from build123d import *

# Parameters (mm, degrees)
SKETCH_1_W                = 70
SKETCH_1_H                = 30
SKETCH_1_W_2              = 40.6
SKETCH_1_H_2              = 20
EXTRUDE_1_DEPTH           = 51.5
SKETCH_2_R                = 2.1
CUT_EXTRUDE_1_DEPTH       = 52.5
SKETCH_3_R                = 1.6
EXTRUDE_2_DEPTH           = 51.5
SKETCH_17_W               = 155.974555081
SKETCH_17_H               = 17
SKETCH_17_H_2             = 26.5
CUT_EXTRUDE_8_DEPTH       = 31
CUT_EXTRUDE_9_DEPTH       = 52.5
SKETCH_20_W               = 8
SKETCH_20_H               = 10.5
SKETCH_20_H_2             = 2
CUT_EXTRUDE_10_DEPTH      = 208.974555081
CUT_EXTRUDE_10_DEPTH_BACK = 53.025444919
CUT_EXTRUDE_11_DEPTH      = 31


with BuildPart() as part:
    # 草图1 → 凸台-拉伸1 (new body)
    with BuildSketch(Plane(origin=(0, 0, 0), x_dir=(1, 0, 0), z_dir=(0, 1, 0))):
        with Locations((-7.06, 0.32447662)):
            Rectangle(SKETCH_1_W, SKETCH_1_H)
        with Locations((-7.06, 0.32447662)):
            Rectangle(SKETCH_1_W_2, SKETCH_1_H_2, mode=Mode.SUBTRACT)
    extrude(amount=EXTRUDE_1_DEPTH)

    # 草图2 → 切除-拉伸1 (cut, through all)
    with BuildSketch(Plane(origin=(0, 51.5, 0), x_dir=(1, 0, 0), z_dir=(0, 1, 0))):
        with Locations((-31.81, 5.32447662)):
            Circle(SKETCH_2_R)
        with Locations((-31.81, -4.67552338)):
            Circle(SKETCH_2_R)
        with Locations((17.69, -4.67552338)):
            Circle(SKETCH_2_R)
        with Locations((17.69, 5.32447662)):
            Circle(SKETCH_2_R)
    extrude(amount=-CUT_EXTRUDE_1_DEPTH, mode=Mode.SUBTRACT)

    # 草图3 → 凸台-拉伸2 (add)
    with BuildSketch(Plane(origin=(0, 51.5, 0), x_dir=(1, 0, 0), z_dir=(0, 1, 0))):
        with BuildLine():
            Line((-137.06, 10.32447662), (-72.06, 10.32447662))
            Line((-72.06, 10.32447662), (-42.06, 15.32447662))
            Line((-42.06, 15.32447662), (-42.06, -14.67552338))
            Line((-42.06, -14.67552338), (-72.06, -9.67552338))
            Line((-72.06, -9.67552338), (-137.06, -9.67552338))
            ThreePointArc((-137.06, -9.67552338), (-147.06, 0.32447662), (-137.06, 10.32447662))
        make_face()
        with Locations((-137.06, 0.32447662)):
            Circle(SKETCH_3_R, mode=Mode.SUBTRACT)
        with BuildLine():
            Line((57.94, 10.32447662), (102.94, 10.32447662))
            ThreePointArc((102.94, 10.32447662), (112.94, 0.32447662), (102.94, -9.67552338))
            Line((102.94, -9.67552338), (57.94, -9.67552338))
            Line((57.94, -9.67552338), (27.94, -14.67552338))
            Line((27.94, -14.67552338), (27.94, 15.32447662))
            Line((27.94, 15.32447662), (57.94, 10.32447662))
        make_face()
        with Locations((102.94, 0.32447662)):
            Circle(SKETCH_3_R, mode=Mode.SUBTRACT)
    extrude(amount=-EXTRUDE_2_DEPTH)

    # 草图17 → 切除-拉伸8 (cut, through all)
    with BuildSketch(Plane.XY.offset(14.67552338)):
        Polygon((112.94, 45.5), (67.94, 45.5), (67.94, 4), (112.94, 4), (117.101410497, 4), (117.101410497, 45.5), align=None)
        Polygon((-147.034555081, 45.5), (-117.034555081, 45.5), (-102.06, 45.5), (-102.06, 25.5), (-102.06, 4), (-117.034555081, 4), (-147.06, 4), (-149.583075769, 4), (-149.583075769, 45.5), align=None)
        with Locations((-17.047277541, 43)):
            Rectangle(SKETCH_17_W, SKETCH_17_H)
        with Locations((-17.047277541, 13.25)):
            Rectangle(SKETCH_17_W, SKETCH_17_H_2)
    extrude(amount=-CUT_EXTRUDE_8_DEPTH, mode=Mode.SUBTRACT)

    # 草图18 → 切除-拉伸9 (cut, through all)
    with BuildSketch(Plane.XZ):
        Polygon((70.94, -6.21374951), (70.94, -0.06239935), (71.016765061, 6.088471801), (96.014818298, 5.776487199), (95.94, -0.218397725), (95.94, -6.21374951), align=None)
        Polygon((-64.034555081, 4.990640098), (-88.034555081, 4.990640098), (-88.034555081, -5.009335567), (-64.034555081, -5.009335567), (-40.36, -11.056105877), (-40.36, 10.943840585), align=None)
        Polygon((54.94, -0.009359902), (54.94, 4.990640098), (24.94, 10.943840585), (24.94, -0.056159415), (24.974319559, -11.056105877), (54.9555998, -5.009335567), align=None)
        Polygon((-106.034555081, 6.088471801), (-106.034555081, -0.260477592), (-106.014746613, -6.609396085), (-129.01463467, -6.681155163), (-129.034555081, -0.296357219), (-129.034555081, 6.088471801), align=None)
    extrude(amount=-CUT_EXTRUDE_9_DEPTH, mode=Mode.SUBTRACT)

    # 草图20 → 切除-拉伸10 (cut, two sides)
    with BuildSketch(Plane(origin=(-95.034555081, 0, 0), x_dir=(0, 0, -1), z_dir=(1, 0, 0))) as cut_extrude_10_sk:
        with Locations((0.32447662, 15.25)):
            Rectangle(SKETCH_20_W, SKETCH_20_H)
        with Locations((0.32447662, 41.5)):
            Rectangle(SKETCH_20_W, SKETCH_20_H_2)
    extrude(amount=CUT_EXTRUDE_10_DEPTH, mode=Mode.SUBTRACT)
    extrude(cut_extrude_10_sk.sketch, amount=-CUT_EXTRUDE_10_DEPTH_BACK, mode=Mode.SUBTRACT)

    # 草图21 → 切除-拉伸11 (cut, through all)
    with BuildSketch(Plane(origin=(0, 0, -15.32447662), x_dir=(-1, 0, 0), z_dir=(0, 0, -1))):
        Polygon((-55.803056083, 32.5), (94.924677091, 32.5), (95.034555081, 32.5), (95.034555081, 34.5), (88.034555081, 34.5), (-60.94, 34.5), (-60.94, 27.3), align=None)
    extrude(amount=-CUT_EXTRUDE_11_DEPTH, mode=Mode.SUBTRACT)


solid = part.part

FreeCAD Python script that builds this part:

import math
import FreeCAD as App
import Part
import Sketcher
from FreeCAD import Vector


def add_polygon(sketch, points):
    """Adds a closed chain of lines whose ends are joined by coincident constraints."""
    first, n = sketch.GeometryCount, len(points)
    for a, b in zip(points, points[1:] + points[:1]):
        sketch.addGeometry(Part.LineSegment(App.Vector(*a, 0), App.Vector(*b, 0)), False)
    for i in range(n):
        sketch.addConstraint(Sketcher.Constraint("Coincident", first + i, 2, first + (i + 1) % n, 1))

doc = App.newDocument("Part")
body = doc.addObject("PartDesign::Body", "Body")

# Sketch on XZ plane
sketch1 = body.newObject("Sketcher::SketchObject", "Sketch")
sketch1.AttachmentSupport = (doc.getObject("XZ_Plane"), [""])
sketch1.MapMode = "FlatFace"
add_polygon(sketch1, [(-42.06, -15.324477), (-42.06, 14.675523), (27.94, 14.675523), (27.94, -15.324477)])  # lines 0-3
add_polygon(sketch1, [(13.24, 9.675523), (-27.36, 9.675523), (-27.36, -10.324477), (13.24, -10.324477)])  # lines 4-7
sketch1.addConstraint(Sketcher.Constraint("Vertical", 0))
sketch1.addConstraint(Sketcher.Constraint("Horizontal", 1))
sketch1.addConstraint(Sketcher.Constraint("Vertical", 2))
sketch1.addConstraint(Sketcher.Constraint("Horizontal", 3))
sketch1.addConstraint(Sketcher.Constraint("Horizontal", 4))
sketch1.addConstraint(Sketcher.Constraint("Vertical", 5))
sketch1.addConstraint(Sketcher.Constraint("Horizontal", 6))
sketch1.addConstraint(Sketcher.Constraint("Vertical", 7))
sketch1.addConstraint(Sketcher.Constraint("DistanceX", 1, 1, 1, 2, 70.0))
sketch1.addConstraint(Sketcher.Constraint("DistanceY", 0, 1, 0, 2, 30.0))
sketch1.addConstraint(Sketcher.Constraint("DistanceY", 5, 2, 5, 1, 20.0))
sketch1.addConstraint(Sketcher.Constraint("DistanceX", 4, 2, 4, 1, 40.6))
sketch1.addConstraint(Sketcher.Constraint("DistanceY", 4, 2, 0, 2, 5.0))
sketch1.addConstraint(Sketcher.Constraint("DistanceX", 0, 2, 4, 2, 14.7))
sketch1.addConstraint(Sketcher.Constraint("DistanceX", 0, 2, -1, 1, 42.06))
sketch1.addConstraint(Sketcher.Constraint("DistanceY", -1, 1, 0, 2, 14.675523))
pad1 = body.newObject("PartDesign::Pad", "Pad")
pad1.Profile = sketch1
pad1.Length = 51.5
pad1.Reversed = True

# Sketch on XZ plane
sketch2 = body.newObject("Sketcher::SketchObject", "Sketch001")
sketch2.AttachmentSupport = (doc.getObject("XZ_Plane"), [""])
sketch2.MapMode = "FlatFace"
sketch2.AttachmentOffset = App.Placement(Vector(0, 0, -51.5), App.Rotation())
sketch2.addGeometry(Part.Circle(Vector(-31.81, -5.324477, 0), Vector(0, 0, 1), 2.1), False)
sketch2.addGeometry(Part.Circle(Vector(-31.81, 4.675523, 0), Vector(0, 0, 1), 2.1), False)
sketch2.addGeometry(Part.Circle(Vector(17.69, 4.675523, 0), Vector(0, 0, 1), 2.1), False)
sketch2.addGeometry(Part.Circle(Vector(17.69, -5.324477, 0), Vector(0, 0, 1), 2.1), False)
sketch2.addConstraint(Sketcher.Constraint("Equal", 0, 1))
sketch2.addConstraint(Sketcher.Constraint("Equal", 1, 2))
sketch2.addConstraint(Sketcher.Constraint("Equal", 2, 3))
sketch2.addConstraint(Sketcher.Constraint("Horizontal", 1, 3, 2, 3))
sketch2.addConstraint(Sketcher.Constraint("Horizontal", 0, 3, 3, 3))
sketch2.addConstraint(Sketcher.Constraint("Vertical", 0, 3, 1, 3))
sketch2.addConstraint(Sketcher.Constraint("Vertical", 2, 3, 3, 3))
sketch2.addConstraint(Sketcher.Constraint("Diameter", 0, 4.2))
sketch2.addConstraint(Sketcher.Constraint("DistanceY", 0, 3, 1, 3, 10.0))
sketch2.addConstraint(Sketcher.Constraint("DistanceX", 1, 3, 2, 3, 49.5))
sketch2.addConstraint(Sketcher.Constraint("DistanceX", 0, 3, -1, 1, 31.81))
sketch2.addConstraint(Sketcher.Constraint("DistanceY", 0, 3, -1, 1, 5.324477))
pocket1 = body.newObject("PartDesign::Pocket", "Pocket")
pocket1.Profile = sketch2
pocket1.Type = "ThroughAll"
pocket1.Reversed = True

# Sketch on XZ plane
sketch3 = body.newObject("Sketcher::SketchObject", "Sketch002")
sketch3.AttachmentSupport = (doc.getObject("XZ_Plane"), [""])
sketch3.MapMode = "FlatFace"
sketch3.AttachmentOffset = App.Placement(Vector(0, 0, -51.5), App.Rotation())
sketch3.addGeometry(Part.LineSegment(Vector(-72.06, -10.324477, 0), Vector(-137.06, -10.324477, 0)), False)
sketch3.addGeometry(Part.ArcOfCircle(Part.Circle(Vector(-137.06, -0.324477, 0), Vector(0, 0, 1), 10), math.radians(90), math.radians(270)), False)
sketch3.addGeometry(Part.LineSegment(Vector(-137.06, 9.675523, 0), Vector(-72.06, 9.675523, 0)), False)
sketch3.addGeometry(Part.LineSegment(Vector(-72.06, 9.675523, 0), Vector(-42.06, 14.675523, 0)), False)
sketch3.addGeometry(Part.LineSegment(Vector(-42.06, 14.675523, 0), Vector(-42.06, -15.324477, 0)), False)
sketch3.addGeometry(Part.LineSegment(Vector(-42.06, -15.324477, 0), Vector(-72.06, -10.324477, 0)), False)
sketch3.addGeometry(Part.Circle(Vector(-137.06, -0.324477, 0), Vector(0, 0, 1), 1.6), False)
sketch3.addGeometry(Part.LineSegment(Vector(102.94, -10.324477, 0), Vector(57.94, -10.324477, 0)), False)
sketch3.addGeometry(Part.LineSegment(Vector(57.94, -10.324477, 0), Vector(27.94, -15.324477, 0)), False)
sketch3.addGeometry(Part.LineSegment(Vector(27.94, -15.324477, 0), Vector(27.94, 14.675523, 0)), False)
sketch3.addGeometry(Part.LineSegment(Vector(27.94, 14.675523, 0), Vector(57.94, 9.675523, 0)), False)
sketch3.addGeometry(Part.LineSegment(Vector(57.94, 9.675523, 0), Vector(102.94, 9.675523, 0)), False)
sketch3.addGeometry(Part.ArcOfCircle(Part.Circle(Vector(102.94, -0.324477, 0), Vector(0, 0, 1), 10), math.radians(-90), math.radians(90)), False)
sketch3.addGeometry(Part.Circle(Vector(102.94, -0.324477, 0), Vector(0, 0, 1), 1.6), False)
sketch3.addConstraint(Sketcher.Constraint("Tangent", 0, 2, 1, 2))
sketch3.addConstraint(Sketcher.Constraint("Tangent", 1, 1, 2, 1))
sketch3.addConstraint(Sketcher.Constraint("Coincident", 2, 2, 3, 1))
sketch3.addConstraint(Sketcher.Constraint("Coincident", 3, 2, 4, 1))
sketch3.addConstraint(Sketcher.Constraint("Coincident", 4, 2, 5, 1))
sketch3.addConstraint(Sketcher.Constraint("Coincident", 5, 2, 0, 1))
sketch3.addConstraint(Sketcher.Constraint("Coincident", 7, 2, 8, 1))
sketch3.addConstraint(Sketcher.Constraint("Coincident", 8, 2, 9, 1))
sketch3.addConstraint(Sketcher.Constraint("Coincident", 9, 2, 10, 1))
sketch3.addConstraint(Sketcher.Constraint("Coincident", 10, 2, 11, 1))
sketch3.addConstraint(Sketcher.Constraint("Tangent", 11, 2, 12, 2))
sketch3.addConstraint(Sketcher.Constraint("Tangent", 12, 1, 7, 1))
sketch3.addConstraint(Sketcher.Constraint("Horizontal", 0))
sketch3.addConstraint(Sketcher.Constraint("Horizontal", 2))
sketch3.addConstraint(Sketcher.Constraint("Vertical", 4))
sketch3.addConstraint(Sketcher.Constraint("Horizontal", 7))
sketch3.addConstraint(Sketcher.Constraint("Vertical", 9))
sketch3.addConstraint(Sketcher.Constraint("Horizontal", 11))
sketch3.addConstraint(Sketcher.Constraint("Coincident", 6, 3, 1, 3))
sketch3.addConstraint(Sketcher.Constraint("Coincident", 13, 3, 12, 3))
sketch3.addConstraint(Sketcher.Constraint("Equal", 1, 12))
sketch3.addConstraint(Sketcher.Constraint("Equal", 6, 13))
sketch3.addConstraint(Sketcher.Constraint("Parallel", 3, 8))
sketch3.addConstraint(Sketcher.Constraint("Parallel", 5, 10))
sketch3.addConstraint(Sketcher.Constraint("Horizontal", 6, 3, 12, 3))
sketch3.addConstraint(Sketcher.Constraint("Horizontal", 4, 2, 8, 2))
sketch3.addConstraint(Sketcher.Constraint("Horizontal", 3, 2, 9, 2))
sketch3.addConstraint(Sketcher.Constraint("Vertical", 2, 2, 5, 2))
sketch3.addConstraint(Sketcher.Constraint("Vertical", 7, 2, 10, 2))
sketch3.addConstraint(Sketcher.Constraint("Radius", 1, 10.0))
sketch3.addConstraint(Sketcher.Constraint("Diameter", 6, 3.2))
sketch3.addConstraint(Sketcher.Constraint("DistanceX", 0, 2, 0, 1, 65.0))
sketch3.addConstraint(Sketcher.Constraint("DistanceX", 7, 2, 7, 1, 45.0))
sketch3.addConstraint(Sketcher.Constraint("DistanceY", 4, 2, 4, 1, 30.0))
sketch3.addConstraint(Sketcher.Constraint("DistanceX", 1, 3, 12, 3, 240.0))
sketch3.addConstraint(Sketcher.Constraint("DistanceX", 2, 2, 3, 2, 30.0))
sketch3.addConstraint(Sketcher.Constraint("DistanceX", 1, 3, -1, 1, 137.06))
sketch3.addConstraint(Sketcher.Constraint("DistanceY", 1, 3, -1, 1, 0.324477))
pad2 = body.newObject("PartDesign::Pad", "Pad001")
pad2.Profile = sketch3
pad2.Length = 51.5

# Sketch on XY plane
sketch4 = body.newObject("Sketcher::SketchObject", "Sketch003")
sketch4.AttachmentSupport = (doc.getObject("XY_Plane"), [""])
sketch4.MapMode = "FlatFace"
sketch4.AttachmentOffset = App.Placement(Vector(0, 0, 14.675523), App.Rotation())
add_polygon(sketch4, [(67.94, 45.5), (67.94, 4), (117.10141, 4), (117.10141, 45.5)])  # lines 0-3
add_polygon(sketch4, [(-102.06, 45.5), (-149.583076, 45.5), (-149.583076, 4), (-102.06, 4)])  # lines 4-7
add_polygon(sketch4, [(-95.034555, 51.5), (-95.034555, 34.5), (60.94, 34.5), (60.94, 51.5)])  # lines 8-11
add_polygon(sketch4, [(-95.034555, 26.5), (-95.034555, 0), (60.94, 0), (60.94, 26.5)])  # lines 12-15
sketch4.addConstraint(Sketcher.Constraint("Vertical", 0))
sketch4.addConstraint(Sketcher.Constraint("Horizontal", 1))
sketch4.addConstraint(Sketcher.Constraint("Vertical", 2))
sketch4.addConstraint(Sketcher.Constraint("Horizontal", 3))
sketch4.addConstraint(Sketcher.Constraint("Horizontal", 4))
sketch4.addConstraint(Sketcher.Constraint("Vertical", 5))
sketch4.addConstraint(Sketcher.Constraint("Horizontal", 6))
sketch4.addConstraint(Sketcher.Constraint("Vertical", 7))
sketch4.addConstraint(Sketcher.Constraint("Vertical", 8))
sketch4.addConstraint(Sketcher.Constraint("Horizontal", 9))
sketch4.addConstraint(Sketcher.Constraint("Vertical", 10))
sketch4.addConstraint(Sketcher.Constraint("Horizontal", 11))
sketch4.addConstraint(Sketcher.Constraint("Vertical", 12))
sketch4.addConstraint(Sketcher.Constraint("Horizontal", 13))
sketch4.addConstraint(Sketcher.Constraint("Vertical", 14))
sketch4.addConstraint(Sketcher.Constraint("Horizontal", 15))
sketch4.addConstraint(Sketcher.Constraint("PointOnObject", 12, 2, -1))
sketch4.addConstraint(Sketcher.Constraint("Horizontal", 3, 2, 4, 2))
sketch4.addConstraint(Sketcher.Constraint("Horizontal", 1, 2, 5, 2))
sketch4.addConstraint(Sketcher.Constraint("Vertical", 11, 2, 12, 2))
sketch4.addConstraint(Sketcher.Constraint("Vertical", 10, 2, 13, 2))
sketch4.addConstraint(Sketcher.Constraint("DistanceY", 8, 2, 8, 1, 17.0))
sketch4.addConstraint(Sketcher.Constraint("DistanceY", 0, 2, 0, 1, 41.5))
sketch4.addConstraint(Sketcher.Constraint("DistanceY", 12, 2, 12, 1, 26.5))
sketch4.addConstraint(Sketcher.Constraint("DistanceY", -1, 1, 0, 2, 4.0))
sketch4.addConstraint(Sketcher.Constraint("DistanceX", 6, 2, 0, 2, 170.0))
sketch4.addConstraint(Sketcher.Constraint("DistanceY", 8, 2, 7, 2, 11.0))
sketch4.addConstraint(Sketcher.Constraint("DistanceX", 9, 2, 3, 2, 7.0))
sketch4.addConstraint(Sketcher.Constraint("DistanceX", -1, 1, 0, 2, 67.94))
sketch4.addConstraint(Sketcher.Constraint("DistanceX", 1, 1, 1, 2, 49.16141))
sketch4.addConstraint(Sketcher.Constraint("DistanceX", 4, 2, 4, 1, 47.523076))
sketch4.addConstraint(Sketcher.Constraint("DistanceX", 9, 1, 9, 2, 155.974555))
pocket2 = body.newObject("PartDesign::Pocket", "Pocket001")
pocket2.Profile = sketch4
pocket2.Type = "ThroughAll"

# Sketch on XZ plane
sketch5 = body.newObject("Sketcher::SketchObject", "Sketch004")
sketch5.AttachmentSupport = (doc.getObject("XZ_Plane"), [""])
sketch5.MapMode = "FlatFace"
add_polygon(sketch5, [(70.94, -0.062399), (70.94, -6.21375), (95.94, -6.21375), (95.94, -0.218398), (96.014818, 5.776487), (71.016765, 6.088472)])  # lines 0-5
add_polygon(sketch5, [(-64.034555, 4.99064), (-88.034555, 4.99064), (-88.034555, -5.009336), (-64.034555, -5.009336), (-40.36, -11.056106), (-40.36, 10.943841)])  # lines 6-11
add_polygon(sketch5, [(54.94, -0.00936), (54.94, 4.99064), (24.94, 10.943841), (24.94, -0.056159), (24.97432, -11.056106), (54.9556, -5.009336)])  # lines 12-17
add_polygon(sketch5, [(-106.034555, -0.260478), (-106.034555, 6.088472), (-129.034555, 6.088472), (-129.034555, -0.296357), (-129.014635, -6.681155), (-106.014747, -6.609396)])  # lines 18-23
sketch5.addConstraint(Sketcher.Constraint("Vertical", 0))
sketch5.addConstraint(Sketcher.Constraint("Horizontal", 1))
sketch5.addConstraint(Sketcher.Constraint("Vertical", 2))
sketch5.addConstraint(Sketcher.Constraint("Horizontal", 6))
sketch5.addConstraint(Sketcher.Constraint("Vertical", 7))
sketch5.addConstraint(Sketcher.Constraint("Horizontal", 8))
sketch5.addConstraint(Sketcher.Constraint("Vertical", 10))
sketch5.addConstraint(Sketcher.Constraint("Vertical", 12))
sketch5.addConstraint(Sketcher.Constraint("Vertical", 14))
sketch5.addConstraint(Sketcher.Constraint("Vertical", 18))
sketch5.addConstraint(Sketcher.Constraint("Horizontal", 19))
sketch5.addConstraint(Sketcher.Constraint("Vertical", 20))
sketch5.addConstraint(Sketcher.Constraint("Perpendicular", 3, 4))
sketch5.addConstraint(Sketcher.Constraint("Perpendicular", 4, 5))
sketch5.addConstraint(Sketcher.Constraint("Parallel", 15, 17))
sketch5.addConstraint(Sketcher.Constraint("Parallel", 17, 21))
sketch5.addConstraint(Sketcher.Constraint("Perpendicular", 21, 22))
sketch5.addConstraint(Sketcher.Constraint("Perpendicular", 22, 23))
sketch5.addConstraint(Sketcher.Constraint("Horizontal", 11, 2, 12, 2))
sketch5.addConstraint(Sketcher.Constraint("Horizontal", 10, 2, 13, 2))
sketch5.addConstraint(Sketcher.Constraint("Horizontal", 9, 2, 15, 2))
sketch5.addConstraint(Sketcher.Constraint("Horizontal", 8, 2, 16, 2))
sketch5.addConstraint(Sketcher.Constraint("Horizontal", 4, 2, 18, 2))
sketch5.addConstraint(Sketcher.Constraint("Vertical", 8, 2, 11, 2))
sketch5.addConstraint(Sketcher.Constraint("Equal", 13, 16))
sketch5.addConstraint(Sketcher.Constraint("DistanceX", 1, 1, 1, 2, 25.0))
sketch5.addConstraint(Sketcher.Constraint("DistanceX", 6, 2, 6, 1, 24.0))
sketch5.addConstraint(Sketcher.Constraint("DistanceX", 19, 2, 19, 1, 23.0))
sketch5.addConstraint(Sketcher.Constraint("DistanceY", 12, 1, 12, 2, 5.0))
sketch5.addConstraint(Sketcher.Constraint("DistanceY", 14, 2, 14, 1, 11.0))
sketch5.addConstraint(Sketcher.Constraint("Distance", 4, 25.0))
sketch5.addConstraint(Sketcher.Constraint("Distance", 15, 11.0))
sketch5.addConstraint(Sketcher.Constraint("Distance", 17, 5.0))
sketch5.addConstraint(Sketcher.Constraint("Distance", 22, 23.0))
sketch5.addConstraint(Sketcher.Constraint("DistanceX", 12, 2, 5, 2, 16.0))
sketch5.addConstraint(Sketcher.Constraint("DistanceX", 13, 2, 12, 2, 30.0))
sketch5.addConstraint(Sketcher.Constraint("DistanceX", 18, 2, 6, 2, 18.0))
sketch5.addConstraint(Sketcher.Constraint("DistanceX", 9, 2, 0, 2, 111.3))
sketch5.addConstraint(Sketcher.Constraint("DistanceX", -1, 1, 0, 2, 70.94))
sketch5.addConstraint(Sketcher.Constraint("DistanceY", 2, 2, 5, 2, 0.155998))
sketch5.addConstraint(Sketcher.Constraint("DistanceY", 0, 2, 0, 1, 6.15135))
sketch5.addConstraint(Sketcher.Constraint("DistanceY", 18, 1, 18, 2, 6.348949))
sketch5.addConstraint(Sketcher.Constraint("DistanceY", 20, 2, 20, 1, 6.384829))
sketch5.addConstraint(Sketcher.Constraint("DistanceY", 5, 2, -1, 1, 0.062399))
sketch5.addConstraint(Sketcher.Constraint("Distance", 3, 5.995352))
sketch5.addConstraint(Sketcher.Constraint("Distance", 11, 24.411578))
sketch5.addConstraint(Sketcher.Constraint("Distance", 21, 6.384829))
sketch5.addConstraint(Sketcher.Constraint("DistanceY", -1, 1, 6, 2, 4.99064))
pocket3 = body.newObject("PartDesign::Pocket", "Pocket002")
pocket3.Profile = sketch5
pocket3.Type = "ThroughAll"

# Sketch on YZ plane
sketch6 = body.newObject("Sketcher::SketchObject", "Sketch005")
sketch6.AttachmentSupport = (doc.getObject("YZ_Plane"), [""])
sketch6.MapMode = "FlatFace"
sketch6.AttachmentOffset = App.Placement(Vector(0, 0, -95.034555), App.Rotation())
add_polygon(sketch6, [(20.5, 3.675523), (10, 3.675523), (10, -4.324477), (20.5, -4.324477)])  # lines 0-3
add_polygon(sketch6, [(42.5, 3.675523), (40.5, 3.675523), (40.5, -4.324477), (42.5, -4.324477)])  # lines 4-7
sketch6.addConstraint(Sketcher.Constraint("Horizontal", 0))
sketch6.addConstraint(Sketcher.Constraint("Vertical", 1))
sketch6.addConstraint(Sketcher.Constraint("Horizontal", 2))
sketch6.addConstraint(Sketcher.Constraint("Vertical", 3))
sketch6.addConstraint(Sketcher.Constraint("Horizontal", 4))
sketch6.addConstraint(Sketcher.Constraint("Vertical", 5))
sketch6.addConstraint(Sketcher.Constraint("Horizontal", 6))
sketch6.addConstraint(Sketcher.Constraint("Vertical", 7))
sketch6.addConstraint(Sketcher.Constraint("Horizontal", 3, 2, 4, 2))
sketch6.addConstraint(Sketcher.Constraint("Horizontal", 2, 2, 5, 2))
sketch6.addConstraint(Sketcher.Constraint("DistanceX", 4, 2, 4, 1, 2.0))
sketch6.addConstraint(Sketcher.Constraint("DistanceY", 1, 2, 1, 1, 8.0))
sketch6.addConstraint(Sketcher.Constraint("DistanceX", 0, 2, 0, 1, 10.5))
sketch6.addConstraint(Sketcher.Constraint("DistanceX", -1, 1, 0, 2, 10.0))
sketch6.addConstraint(Sketcher.Constraint("DistanceX", 3, 2, 4, 2, 20.0))
sketch6.addConstraint(Sketcher.Constraint("DistanceY", -1, 1, 0, 2, 3.675523))
pocket4 = body.newObject("PartDesign::Pocket", "Pocket003")
pocket4.Profile = sketch6
pocket4.Type = "ThroughAll"
pocket4.Midplane = True

# Sketch on XY plane
sketch7 = body.newObject("Sketcher::SketchObject", "Sketch006")
sketch7.AttachmentSupport = (doc.getObject("XY_Plane"), [""])
sketch7.MapMode = "FlatFace"
sketch7.AttachmentOffset = App.Placement(Vector(0, 0, -15.324477), App.Rotation())
add_polygon(sketch7, [(55.803056, 32.5), (-95.034555, 32.5), (-95.034555, 34.5), (60.94, 34.5), (60.94, 27.3)])  # lines 0-4
sketch7.addConstraint(Sketcher.Constraint("Horizontal", 0))
sketch7.addConstraint(Sketcher.Constraint("Vertical", 1))
sketch7.addConstraint(Sketcher.Constraint("Horizontal", 2))
sketch7.addConstraint(Sketcher.Constraint("Vertical", 3))
sketch7.addConstraint(Sketcher.Constraint("DistanceY", 1, 1, 1, 2, 2.0))
sketch7.addConstraint(Sketcher.Constraint("DistanceY", 3, 2, 3, 1, 7.2))
sketch7.addConstraint(Sketcher.Constraint("DistanceY", -1, 1, 0, 2, 32.5))
sketch7.addConstraint(Sketcher.Constraint("DistanceX", -1, 1, 2, 2, 60.94))
sketch7.addConstraint(Sketcher.Constraint("DistanceX", 0, 2, 0, 1, 150.837611))
sketch7.addConstraint(Sketcher.Constraint("Distance", 4, 7.309459))
pocket5 = body.newObject("PartDesign::Pocket", "Pocket004")
pocket5.Profile = sketch7
pocket5.Type = "ThroughAll"
pocket5.Reversed = True

doc.recompute()
